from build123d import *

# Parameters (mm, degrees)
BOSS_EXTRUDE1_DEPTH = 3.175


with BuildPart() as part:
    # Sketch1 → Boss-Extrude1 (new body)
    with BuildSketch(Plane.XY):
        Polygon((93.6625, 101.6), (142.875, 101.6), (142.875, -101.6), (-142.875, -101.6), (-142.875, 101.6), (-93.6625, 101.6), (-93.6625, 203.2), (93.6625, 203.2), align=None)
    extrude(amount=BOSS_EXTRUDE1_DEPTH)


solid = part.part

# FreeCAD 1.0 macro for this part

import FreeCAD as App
import Part
import Sketcher
Q = App.Units.Quantity

doc = App.newDocument("Part")
params = doc.addObject("Spreadsheet::Sheet", "Params")
for row, (alias, value) in enumerate([
    ("sketch1_height", "4 in"),
    ("sketch1_height2", "8 in"),
    ("sketch1_width", "11.25 in"),
    ("sketch1_width2", "1.9375 in"),
    ("pad1_length", "0.125 in"),
], start=1):
    params.set(f"A{row}", alias)
    params.set(f"B{row}", "=" + value)
    params.setAlias(f"B{row}", alias)

body = doc.addObject("PartDesign::Body", "Body")

# Sketch on XY plane
sketch1 = body.newObject("Sketcher::SketchObject", "Sketch")
sketch1.AttachmentSupport = (doc.getObject("XY_Plane"), [""])
sketch1.MapMode = "FlatFace"
sketch1.addGeometry([
    Part.LineSegment(App.Vector(142.875, 101.6, 0), App.Vector(93.6625, 101.6, 0)),  # 0
    Part.LineSegment(App.Vector(93.6625, 101.6, 0), App.Vector(93.6625, 203.2, 0)),  # 1
    Part.LineSegment(App.Vector(93.6625, 203.2, 0), App.Vector(-93.6625, 203.2, 0)),  # 2
    Part.LineSegment(App.Vector(-93.6625, 203.2, 0), App.Vector(-93.6625, 101.6, 0)),  # 3
    Part.LineSegment(App.Vector(-93.6625, 101.6, 0), App.Vector(-142.875, 101.6, 0)),  # 4
    Part.LineSegment(App.Vector(-142.875, 101.6, 0), App.Vector(-142.875, -101.6, 0)),  # 5
    Part.LineSegment(App.Vector(-142.875, -101.6, 0), App.Vector(142.875, -101.6, 0)),  # 6
    Part.LineSegment(App.Vector(142.875, -101.6, 0), App.Vector(142.875, 101.6, 0)),  # 7
], False)
sketch1.addConstraint([
    Sketcher.Constraint("Coincident", 0, 2, 1, 1),
    Sketcher.Constraint("Coincident", 1, 2, 2, 1),
    Sketcher.Constraint("Coincident", 2, 2, 3, 1),
    Sketcher.Constraint("Coincident", 3, 2, 4, 1),
    Sketcher.Constraint("Coincident", 4, 2, 5, 1),
    Sketcher.Constraint("Coincident", 5, 2, 6, 1),
    Sketcher.Constraint("Coincident", 6, 2, 7, 1),
    Sketcher.Constraint("Coincident", 7, 2, 0, 1),
    Sketcher.Constraint("Horizontal", 0),
    Sketcher.Constraint("Vertical", 1),
    Sketcher.Constraint("Horizontal", 2),
    Sketcher.Constraint("Vertical", 3),
    Sketcher.Constraint("Horizontal", 4),
    Sketcher.Constraint("Vertical", 5),
    Sketcher.Constraint("Horizontal", 6),
    Sketcher.Constraint("Vertical", 7),
    Sketcher.Constraint("Symmetric", 4, 2, 6, 2, -1, 1),
    Sketcher.Constraint("Symmetric", 0, 2, 3, 2, -2),
    Sketcher.Constraint("DistanceY", 1, 1, 1, 2, Q("4 in")),
    Sketcher.Constraint("DistanceY", 5, 2, 5, 1, Q("8 in")),
    Sketcher.Constraint("DistanceX", 6, 1, 6, 2, Q("11.25 in")),
    Sketcher.Constraint("DistanceX", 0, 2, 0, 1, Q("1.9375 in")),
])
sketch1.setExpression("Constraints[18]", "Params.sketch1_height")
sketch1.setExpression("Constraints[19]", "Params.sketch1_height2")
sketch1.setExpression("Constraints[20]", "Params.sketch1_width")
sketch1.setExpression("Constraints[21]", "Params.sketch1_width2")
pad1 = body.newObject("PartDesign::Pad", "Pad")
pad1.Profile = sketch1
pad1.setExpression("Length", "Params.pad1_length")

doc.recompute()
